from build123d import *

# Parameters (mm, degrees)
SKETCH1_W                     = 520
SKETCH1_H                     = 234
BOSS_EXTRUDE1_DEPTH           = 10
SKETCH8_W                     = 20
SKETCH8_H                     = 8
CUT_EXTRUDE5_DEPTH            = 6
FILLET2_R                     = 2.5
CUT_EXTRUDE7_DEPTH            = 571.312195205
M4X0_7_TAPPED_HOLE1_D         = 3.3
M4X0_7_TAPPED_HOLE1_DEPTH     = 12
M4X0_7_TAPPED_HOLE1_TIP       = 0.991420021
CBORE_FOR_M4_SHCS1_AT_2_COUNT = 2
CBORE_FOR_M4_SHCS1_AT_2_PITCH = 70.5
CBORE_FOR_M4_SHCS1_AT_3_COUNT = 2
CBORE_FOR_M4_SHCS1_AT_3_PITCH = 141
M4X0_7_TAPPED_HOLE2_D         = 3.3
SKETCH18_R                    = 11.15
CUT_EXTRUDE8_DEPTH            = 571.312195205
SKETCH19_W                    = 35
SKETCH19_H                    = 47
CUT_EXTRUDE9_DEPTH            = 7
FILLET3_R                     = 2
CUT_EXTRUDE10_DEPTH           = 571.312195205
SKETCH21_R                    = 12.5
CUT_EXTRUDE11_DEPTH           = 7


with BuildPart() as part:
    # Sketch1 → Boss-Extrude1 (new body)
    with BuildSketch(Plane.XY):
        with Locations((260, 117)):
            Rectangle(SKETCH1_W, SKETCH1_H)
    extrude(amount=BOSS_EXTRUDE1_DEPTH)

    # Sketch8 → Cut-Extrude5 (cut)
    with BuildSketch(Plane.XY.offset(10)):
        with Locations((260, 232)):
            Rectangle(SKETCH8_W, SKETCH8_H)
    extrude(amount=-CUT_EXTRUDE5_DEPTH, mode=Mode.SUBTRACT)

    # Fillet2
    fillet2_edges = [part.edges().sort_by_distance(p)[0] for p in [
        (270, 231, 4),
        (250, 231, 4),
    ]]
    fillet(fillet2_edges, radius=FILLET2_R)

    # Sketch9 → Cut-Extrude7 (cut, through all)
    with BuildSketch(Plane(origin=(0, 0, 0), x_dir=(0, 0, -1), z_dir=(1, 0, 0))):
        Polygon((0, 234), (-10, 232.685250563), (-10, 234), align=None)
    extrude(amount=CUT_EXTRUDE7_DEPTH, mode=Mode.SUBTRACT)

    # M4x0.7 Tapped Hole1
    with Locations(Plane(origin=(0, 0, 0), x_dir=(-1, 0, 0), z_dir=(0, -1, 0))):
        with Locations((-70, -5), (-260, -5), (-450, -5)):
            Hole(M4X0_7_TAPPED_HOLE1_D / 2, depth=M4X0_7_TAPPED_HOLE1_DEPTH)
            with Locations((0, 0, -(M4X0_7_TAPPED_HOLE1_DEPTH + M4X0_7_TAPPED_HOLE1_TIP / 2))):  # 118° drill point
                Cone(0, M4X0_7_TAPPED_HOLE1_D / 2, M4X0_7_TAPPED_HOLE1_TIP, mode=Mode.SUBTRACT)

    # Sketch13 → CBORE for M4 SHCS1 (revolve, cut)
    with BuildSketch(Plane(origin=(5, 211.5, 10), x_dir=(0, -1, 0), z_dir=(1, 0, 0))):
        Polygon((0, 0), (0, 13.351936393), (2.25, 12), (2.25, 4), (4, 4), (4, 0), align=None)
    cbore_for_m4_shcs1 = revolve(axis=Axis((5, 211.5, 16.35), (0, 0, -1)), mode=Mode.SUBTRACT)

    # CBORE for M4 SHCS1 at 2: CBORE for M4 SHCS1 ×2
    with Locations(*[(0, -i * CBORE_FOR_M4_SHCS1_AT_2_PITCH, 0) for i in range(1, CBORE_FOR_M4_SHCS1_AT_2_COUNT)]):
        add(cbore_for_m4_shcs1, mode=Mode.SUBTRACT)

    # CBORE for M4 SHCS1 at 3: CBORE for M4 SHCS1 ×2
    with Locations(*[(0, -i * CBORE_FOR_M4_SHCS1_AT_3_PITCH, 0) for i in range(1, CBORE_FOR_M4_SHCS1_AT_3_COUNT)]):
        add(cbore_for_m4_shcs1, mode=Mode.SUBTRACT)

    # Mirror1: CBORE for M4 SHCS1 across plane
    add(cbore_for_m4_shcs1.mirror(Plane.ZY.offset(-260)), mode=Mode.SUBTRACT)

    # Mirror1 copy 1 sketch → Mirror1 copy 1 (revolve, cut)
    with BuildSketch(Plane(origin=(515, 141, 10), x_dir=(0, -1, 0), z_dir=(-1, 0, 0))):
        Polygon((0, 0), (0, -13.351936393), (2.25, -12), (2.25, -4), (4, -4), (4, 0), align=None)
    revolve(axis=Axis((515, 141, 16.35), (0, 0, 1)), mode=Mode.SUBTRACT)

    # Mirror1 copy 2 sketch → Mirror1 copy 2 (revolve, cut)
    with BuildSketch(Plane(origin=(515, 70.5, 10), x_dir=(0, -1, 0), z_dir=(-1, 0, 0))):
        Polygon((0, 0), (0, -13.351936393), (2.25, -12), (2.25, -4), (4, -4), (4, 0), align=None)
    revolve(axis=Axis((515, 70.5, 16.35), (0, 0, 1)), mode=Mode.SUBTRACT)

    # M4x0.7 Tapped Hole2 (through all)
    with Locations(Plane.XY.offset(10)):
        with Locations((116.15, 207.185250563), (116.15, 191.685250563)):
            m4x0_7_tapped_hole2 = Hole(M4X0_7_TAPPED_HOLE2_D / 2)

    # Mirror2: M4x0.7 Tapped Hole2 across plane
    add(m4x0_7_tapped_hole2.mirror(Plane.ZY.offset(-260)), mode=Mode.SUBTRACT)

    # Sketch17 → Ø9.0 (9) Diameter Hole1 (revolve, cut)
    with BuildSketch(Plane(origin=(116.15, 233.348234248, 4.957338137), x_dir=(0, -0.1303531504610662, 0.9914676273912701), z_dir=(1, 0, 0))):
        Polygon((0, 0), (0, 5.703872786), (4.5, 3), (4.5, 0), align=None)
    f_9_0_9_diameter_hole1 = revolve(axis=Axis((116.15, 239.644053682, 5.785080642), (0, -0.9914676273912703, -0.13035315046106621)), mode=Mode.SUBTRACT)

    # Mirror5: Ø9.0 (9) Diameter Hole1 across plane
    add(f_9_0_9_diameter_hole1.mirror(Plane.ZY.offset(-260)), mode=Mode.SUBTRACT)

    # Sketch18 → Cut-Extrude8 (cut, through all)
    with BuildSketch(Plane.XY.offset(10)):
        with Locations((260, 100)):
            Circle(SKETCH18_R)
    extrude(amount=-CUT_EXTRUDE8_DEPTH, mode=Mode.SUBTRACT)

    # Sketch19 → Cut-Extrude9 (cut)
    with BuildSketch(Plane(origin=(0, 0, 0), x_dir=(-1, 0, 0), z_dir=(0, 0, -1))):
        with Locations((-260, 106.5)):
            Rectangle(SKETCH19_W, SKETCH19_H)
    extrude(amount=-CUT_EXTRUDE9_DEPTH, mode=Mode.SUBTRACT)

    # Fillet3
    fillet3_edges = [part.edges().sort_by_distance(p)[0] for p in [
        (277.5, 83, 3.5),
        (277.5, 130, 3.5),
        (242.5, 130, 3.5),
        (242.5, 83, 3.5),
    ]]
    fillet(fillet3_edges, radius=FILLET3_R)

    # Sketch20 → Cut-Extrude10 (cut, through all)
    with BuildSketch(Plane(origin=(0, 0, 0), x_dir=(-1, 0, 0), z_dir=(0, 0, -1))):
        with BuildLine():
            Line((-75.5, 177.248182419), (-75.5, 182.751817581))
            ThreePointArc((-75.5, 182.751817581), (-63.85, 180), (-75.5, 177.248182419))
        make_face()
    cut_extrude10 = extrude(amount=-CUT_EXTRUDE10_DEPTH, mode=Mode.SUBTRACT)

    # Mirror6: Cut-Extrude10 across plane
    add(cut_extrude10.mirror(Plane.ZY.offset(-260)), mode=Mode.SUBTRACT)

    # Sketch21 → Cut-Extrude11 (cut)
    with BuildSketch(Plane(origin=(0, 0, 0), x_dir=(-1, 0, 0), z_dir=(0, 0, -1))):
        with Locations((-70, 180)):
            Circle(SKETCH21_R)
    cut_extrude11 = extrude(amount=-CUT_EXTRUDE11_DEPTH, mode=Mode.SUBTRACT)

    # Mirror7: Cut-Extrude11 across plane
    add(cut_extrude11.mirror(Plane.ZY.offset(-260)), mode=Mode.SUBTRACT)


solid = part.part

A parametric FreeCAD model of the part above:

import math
import FreeCAD as App
import Part
import Sketcher

V = App.Vector
Q = App.Units.Quantity


def edges_at(feature, points):
    """Names of the edges that pass closest to the given points."""
    edges = feature.Shape.Edges
    near = lambda p: min(range(len(edges)), key=lambda i: edges[i].distToShape(Part.Vertex(*p))[0])
    return sorted({f"Edge{near(p) + 1}" for p in points})


def add_polygon(sketch, points):
    """Adds a closed chain of lines whose ends are joined by coincident constraints."""
    first, n = sketch.GeometryCount, len(points)
    for a, b in zip(points, points[1:] + points[:1]):
        sketch.addGeometry(Part.LineSegment(App.Vector(*a, 0), App.Vector(*b, 0)), False)
    for i in range(n):
        sketch.addConstraint(Sketcher.Constraint("Coincident", first + i, 2, first + (i + 1) % n, 1))

doc = App.newDocument("Part")
body = doc.addObject("PartDesign::Body", "Body")

# Sketch on XY plane
sketch1 = body.newObject("Sketcher::SketchObject", "Sketch")
sketch1.AttachmentSupport = (doc.getObject("XY_Plane"), [""])
sketch1.MapMode = "FlatFace"
add_polygon(sketch1, [(0, 234), (0, 0), (520, 0), (520, 234)])  # lines 0-3
sketch1.addConstraint([
    Sketcher.Constraint("Vertical", 0),
    Sketcher.Constraint("Horizontal", 1),
    Sketcher.Constraint("Vertical", 2),
    Sketcher.Constraint("Horizontal", 3),
    Sketcher.Constraint("Coincident", 0, 2, -1, 1),
    Sketcher.Constraint("DistanceX", 1, 1, 1, 2, Q("520 mm")),
    Sketcher.Constraint("DistanceY", 0, 2, 0, 1, Q("234 mm")),
])
pad1 = body.newObject("PartDesign::Pad", "Pad")
pad1.Profile = sketch1
pad1.Length = 10

# Sketch on XY plane
sketch2 = body.newObject("Sketcher::SketchObject", "Sketch001")
sketch2.AttachmentSupport = (doc.getObject("XY_Plane"), [""])
sketch2.MapMode = "FlatFace"
sketch2.AttachmentOffset = App.Placement(V(0, 0, 10), App.Rotation())
add_polygon(sketch2, [(250, 236), (250, 228), (270, 228), (270, 236)])  # lines 0-3
sketch2.addConstraint([
    Sketcher.Constraint("Vertical", 0),
    Sketcher.Constraint("Horizontal", 1),
    Sketcher.Constraint("Vertical", 2),
    Sketcher.Constraint("Horizontal", 3),
    Sketcher.Constraint("DistanceX", 1, 1, 1, 2, Q("20 mm")),
    Sketcher.Constraint("DistanceY", 0, 2, 0, 1, Q("8 mm")),
    Sketcher.Constraint("DistanceX", -1, 1, 0, 2, Q("250 mm")),
    Sketcher.Constraint("DistanceY", -1, 1, 0, 2, Q("228 mm")),
])
pocket1 = body.newObject("PartDesign::Pocket", "Pocket")
pocket1.Profile = sketch2
pocket1.Length = 6
doc.recompute()

fillet = body.newObject("PartDesign::Fillet", "Fillet")
fillet.Base = (pocket1, edges_at(pocket1, [(270, 231, 4), (250, 231, 4)]))
fillet.Radius = 2.5

# Sketch on YZ plane
sketch3 = body.newObject("Sketcher::SketchObject", "Sketch002")
sketch3.AttachmentSupport = (doc.getObject("YZ_Plane"), [""])
sketch3.MapMode = "FlatFace"
add_polygon(sketch3, [(232.7, 10), (234, 0), (234, 10)])  # lines 0-2
sketch3.addConstraint([
    Sketcher.Constraint("Vertical", 1),
    Sketcher.Constraint("Horizontal", 2),
    Sketcher.Constraint("PointOnObject", 0, 2, -1),
    Sketcher.Constraint("DistanceY", 1, 1, 1, 2, Q("10 mm")),
    Sketcher.Constraint("DistanceX", -1, 1, 0, 2, Q("234 mm")),
    Sketcher.Constraint("Angle", 0, Q("-82.51 deg")),
])
pocket2 = body.newObject("PartDesign::Pocket", "Pocket001")
pocket2.Profile = sketch3
pocket2.Type = "ThroughAll"
pocket2.Reversed = True

# Sketch on XZ plane
sketch4 = body.newObject("Sketcher::SketchObject", "Sketch003")
sketch4.AttachmentSupport = (doc.getObject("XZ_Plane"), [""])
sketch4.MapMode = "FlatFace"
sketch4.addGeometry([
    Part.Circle(V(70, 5, 0), V(0, 0, 1), 1.6),
    Part.Circle(V(260, 5, 0), V(0, 0, 1), 1.6),
    Part.Circle(V(450, 5, 0), V(0, 0, 1), 1.6),
], False)
sketch4.addConstraint([
    Sketcher.Constraint("Equal", 0, 1),
    Sketcher.Constraint("Equal", 1, 2),
    Sketcher.Constraint("Horizontal", 0, 3, 1, 3),
    Sketcher.Constraint("Horizontal", 1, 3, 2, 3),
    Sketcher.Constraint("Diameter", 0, Q("3.3 mm")),
    Sketcher.Constraint("DistanceX", -1, 1, 0, 3, Q("70 mm")),
    Sketcher.Constraint("DistanceY", -1, 1, 0, 3, Q("5 mm")),
    Sketcher.Constraint("DistanceX", -1, 1, 1, 3, Q("260 mm")),
    Sketcher.Constraint("DistanceX", -1, 1, 2, 3, Q("450 mm")),
])
doc.recompute()
hole = body.newObject("PartDesign::Hole", "Hole")
hole.Profile = sketch4
hole.ThreadType = "None"
hole.Diameter = 3.3
hole.DepthType = "Dimension"
hole.Depth = 12
hole.DrillPoint = "Angled"
hole.DrillPointAngle = 118

# Sketch on YZ plane
sketch5 = body.newObject("Sketcher::SketchObject", "Sketch004")
sketch5.AttachmentSupport = (doc.getObject("YZ_Plane"), [""])
sketch5.MapMode = "FlatFace"
sketch5.AttachmentOffset = App.Placement(V(0, 0, 5), App.Rotation())
add_polygon(sketch5, [(211.5, -3.4), (211.5, 10), (207.5, 10), (207.5, 6), (209.2, 6), (209.2, -2)])  # lines 0-5
sketch5.addGeometry(Part.LineSegment(V(211.5, 10, 0), V(211.5, -3.4, 0)), True)  # axis
sketch5.addConstraint([
    Sketcher.Constraint("Vertical", 0),
    Sketcher.Constraint("Horizontal", 1),
    Sketcher.Constraint("Vertical", 2),
    Sketcher.Constraint("Horizontal", 3),
    Sketcher.Constraint("Vertical", 4),
    Sketcher.Constraint("Vertical", 6),
    Sketcher.Constraint("Coincident", 6, 1, 0, 2),
    Sketcher.Constraint("Equal", 1, 2),
    Sketcher.Constraint("Equal", 0, 6),
    Sketcher.Constraint("DistanceX", 1, 2, 1, 1, Q("4 mm")),
    Sketcher.Constraint("DistanceY", 4, 2, 4, 1, Q("8 mm")),
    Sketcher.Constraint("Angle", 5, Q("-31 deg")),
    Sketcher.Constraint("DistanceY", -1, 1, 0, 2, Q("10 mm")),
    Sketcher.Constraint("DistanceX", 3, 1, 3, 2, Q("1.75 mm")),
    Sketcher.Constraint("DistanceX", -1, 1, 0, 2, Q("211.5 mm")),
])
groove = body.newObject("PartDesign::Groove", "Groove")
groove.Profile = sketch5
groove.ReferenceAxis = (sketch5, ["Axis0"])
groove.Angle = 360
doc.recompute()

linearpattern = body.newObject("PartDesign::LinearPattern", "LinearPattern")
linearpattern.Originals = [groove]
linearpattern.Direction = (doc.getObject("Y_Axis"), [""])
linearpattern.Mode = "offset"
linearpattern.Offset = 70.5
linearpattern.Occurrences = 2
linearpattern.Reversed = True
body.Tip = linearpattern
doc.recompute()

linearpattern2 = body.newObject("PartDesign::LinearPattern", "LinearPattern001")
linearpattern2.Originals = [groove]
linearpattern2.Direction = (doc.getObject("Y_Axis"), [""])
linearpattern2.Mode = "offset"
linearpattern2.Offset = 141
linearpattern2.Occurrences = 2
linearpattern2.Reversed = True
body.Tip = linearpattern2
doc.recompute()

datumplane = body.newObject("PartDesign::Plane", "DatumPlane")
datumplane.AttachmentSupport = (doc.getObject("YZ_Plane"), [""])
datumplane.MapMode = "FlatFace"
datumplane.AttachmentOffset = App.Placement(V(0, 0, 260), App.Rotation())
mirrored = body.newObject("PartDesign::Mirrored", "Mirrored")
mirrored.Originals = [groove]
mirrored.MirrorPlane = (datumplane, [""])
body.Tip = mirrored

# Sketch on YZ plane
sketch6 = body.newObject("Sketcher::SketchObject", "Sketch005")
sketch6.AttachmentSupport = (doc.getObject("YZ_Plane"), [""])
sketch6.MapMode = "FlatFace"
sketch6.AttachmentOffset = App.Placement(V(0, 0, 515), App.Rotation())
add_polygon(sketch6, [(141, 10), (141, -3.4), (138.8, -2), (138.8, 6), (137, 6), (137, 10)])  # lines 0-5
sketch6.addGeometry(Part.LineSegment(V(141, -3.4, 0), V(141, 10, 0)), True)  # axis
sketch6.addConstraint([
    Sketcher.Constraint("Vertical", 0),
    Sketcher.Constraint("Vertical", 2),
    Sketcher.Constraint("Horizontal", 3),
    Sketcher.Constraint("Vertical", 4),
    Sketcher.Constraint("Horizontal", 5),
    Sketcher.Constraint("Vertical", 6),
    Sketcher.Constraint("Coincident", 6, 1, 0, 2),
    Sketcher.Constraint("Horizontal", 4, 2, 6, 2),
    Sketcher.Constraint("Equal", 5, 4),
    Sketcher.Constraint("DistanceX", 5, 1, 5, 2, Q("4 mm")),
    Sketcher.Constraint("DistanceY", 2, 1, 2, 2, Q("8 mm")),
    Sketcher.Constraint("Angle", 1, Q("149 deg")),
    Sketcher.Constraint("DistanceX", -1, 1, 0, 2, Q("141 mm")),
    Sketcher.Constraint("DistanceY", 1, 2, -1, 1, Q("2 mm")),
    Sketcher.Constraint("DistanceX", 3, 2, 3, 1, Q("1.75 mm")),
])
groove2 = body.newObject("PartDesign::Groove", "Groove001")
groove2.Profile = sketch6
groove2.ReferenceAxis = (sketch6, ["Axis0"])
groove2.Angle = 360

# Sketch on YZ plane
sketch7 = body.newObject("Sketcher::SketchObject", "Sketch006")
sketch7.AttachmentSupport = (doc.getObject("YZ_Plane"), [""])
sketch7.MapMode = "FlatFace"
sketch7.AttachmentOffset = App.Placement(V(0, 0, 515), App.Rotation())
add_polygon(sketch7, [(70.5, 10), (70.5, -3.4), (68.2, -2), (68.2, 6), (66.5, 6), (66.5, 10)])  # lines 0-5
sketch7.addGeometry(Part.LineSegment(V(70.5, -3.4, 0), V(70.5, 10, 0)), True)  # axis
sketch7.addConstraint([
    Sketcher.Constraint("Vertical", 0),
    Sketcher.Constraint("Vertical", 2),
    Sketcher.Constraint("Horizontal", 3),
    Sketcher.Constraint("Vertical", 4),
    Sketcher.Constraint("Horizontal", 5),
    Sketcher.Constraint("Vertical", 6),
    Sketcher.Constraint("Coincident", 6, 1, 0, 2),
    Sketcher.Constraint("Horizontal", 4, 2, 6, 2),
    Sketcher.Constraint("Equal", 5, 4),
    Sketcher.Constraint("DistanceX", 5, 1, 5, 2, Q("4 mm")),
    Sketcher.Constraint("DistanceY", 2, 1, 2, 2, Q("8 mm")),
    Sketcher.Constraint("Angle", 1, Q("149 deg")),
    Sketcher.Constraint("DistanceY", 1, 2, -1, 1, Q("2 mm")),
    Sketcher.Constraint("DistanceX", 3, 2, 3, 1, Q("1.75 mm")),
    Sketcher.Constraint("DistanceX", -1, 1, 0, 2, Q("70.5 mm")),
])
groove3 = body.newObject("PartDesign::Groove", "Groove002")
groove3.Profile = sketch7
groove3.ReferenceAxis = (sketch7, ["Axis0"])
groove3.Angle = 360

# Sketch on XY plane
sketch8 = body.newObject("Sketcher::SketchObject", "Sketch007")
sketch8.AttachmentSupport = (doc.getObject("XY_Plane"), [""])
sketch8.MapMode = "FlatFace"
sketch8.AttachmentOffset = App.Placement(V(0, 0, 10), App.Rotation())
sketch8.addGeometry([
    Part.Circle(V(116.2, 207.2, 0), V(0, 0, 1), 1.6),
    Part.Circle(V(116.2, 191.7, 0), V(0, 0, 1), 1.6),
], False)
sketch8.addConstraint([
    Sketcher.Constraint("Equal", 0, 1),
    Sketcher.Constraint("Vertical", 0, 3, 1, 3),
    Sketcher.Constraint("Diameter", 0, Q("3.3 mm")),
    Sketcher.Constraint("DistanceY", 1, 3, 0, 3, Q("15.5 mm")),
    Sketcher.Constraint("DistanceX", -1, 1, 0, 3, Q("116.15 mm")),
    Sketcher.Constraint("DistanceY", -1, 1, 0, 3, Q("207.185251 mm")),
])
doc.recompute()
hole2 = body.newObject("PartDesign::Hole", "Hole001")
hole2.Profile = sketch8
hole2.ThreadType = "None"
hole2.Diameter = 3.3
hole2.DepthType = "ThroughAll"
doc.recompute()

datumplane2 = body.newObject("PartDesign::Plane", "DatumPlane001")
datumplane2.AttachmentSupport = (doc.getObject("YZ_Plane"), [""])
datumplane2.MapMode = "FlatFace"
datumplane2.AttachmentOffset = App.Placement(V(0, 0, 260), App.Rotation())
mirrored2 = body.newObject("PartDesign::Mirrored", "Mirrored001")
mirrored2.Originals = [hole2]
mirrored2.MirrorPlane = (datumplane2, [""])
body.Tip = mirrored2

# Sketch on YZ plane
sketch9 = body.newObject("Sketcher::SketchObject", "Sketch008")
sketch9.AttachmentSupport = (doc.getObject("YZ_Plane"), [""])
sketch9.MapMode = "FlatFace"
sketch9.AttachmentOffset = App.Placement(V(0, 0, 116.15), App.Rotation())
add_polygon(sketch9, [(227.7, 4.2), (233.3, 5), (232.8, 9.4), (229.8, 9)])  # lines 0-3
sketch9.addGeometry(Part.LineSegment(V(233.3, 5, 0), V(227.7, 4.2, 0)), True)  # axis
sketch9.addConstraint([
    Sketcher.Constraint("Coincident", 4, 1, 0, 2),
    Sketcher.Constraint("Coincident", 4, 2, 3, 2),
    Sketcher.Constraint("Perpendicular", 0, 1),
    Sketcher.Constraint("Perpendicular", 1, 2),
    Sketcher.Constraint("Distance", 2, Q("3 mm")),
    Sketcher.Constraint("Distance", 1, Q("4.5 mm")),
    Sketcher.Constraint("Angle", 0, Q("7.49 deg")),
    Sketcher.Constraint("Angle", 3, Q("-113.51 deg")),
    Sketcher.Constraint("DistanceY", -1, 1, 0, 2, Q("4.957338 mm")),
    Sketcher.Constraint("DistanceX", -1, 1, 3, 2, Q("227.693029 mm")),
])
groove4 = body.newObject("PartDesign::Groove", "Groove003")
groove4.Profile = sketch9
groove4.ReferenceAxis = (sketch9, ["Axis0"])
groove4.Angle = 360
doc.recompute()

datumplane3 = body.newObject("PartDesign::Plane", "DatumPlane002")
datumplane3.AttachmentSupport = (doc.getObject("YZ_Plane"), [""])
datumplane3.MapMode = "FlatFace"
datumplane3.AttachmentOffset = App.Placement(V(0, 0, 260), App.Rotation())
mirrored3 = body.newObject("PartDesign::Mirrored", "Mirrored002")
mirrored3.Originals = [groove4]
mirrored3.MirrorPlane = (datumplane3, [""])
body.Tip = mirrored3

# Sketch on XY plane
sketch10 = body.newObject("Sketcher::SketchObject", "Sketch009")
sketch10.AttachmentSupport = (doc.getObject("XY_Plane"), [""])
sketch10.MapMode = "FlatFace"
sketch10.AttachmentOffset = App.Placement(V(0, 0, 10), App.Rotation())
sketch10.addGeometry(Part.Circle(V(260, 100, 0), V(0, 0, 1), 11), False)
sketch10.addConstraint([
    Sketcher.Constraint("Diameter", 0, Q("22.3 mm")),
    Sketcher.Constraint("DistanceX", -1, 1, 0, 3, Q("260 mm")),
    Sketcher.Constraint("DistanceY", -1, 1, 0, 3, Q("100 mm")),
])
pocket3 = body.newObject("PartDesign::Pocket", "Pocket002")
pocket3.Profile = sketch10
pocket3.Type = "ThroughAll"

# Sketch on XY plane
sketch11 = body.newObject("Sketcher::SketchObject", "Sketch010")
sketch11.AttachmentSupport = (doc.getObject("XY_Plane"), [""])
sketch11.MapMode = "FlatFace"
add_polygon(sketch11, [(278, 130), (278, 83), (242, 83), (242, 130)])  # lines 0-3
sketch11.addConstraint([
    Sketcher.Constraint("Vertical", 0),
    Sketcher.Constraint("Horizontal", 1),
    Sketcher.Constraint("Vertical", 2),
    Sketcher.Constraint("Horizontal", 3),
    Sketcher.Constraint("DistanceX", 1, 2, 1, 1, Q("35 mm")),
    Sketcher.Constraint("DistanceY", 0, 2, 0, 1, Q("47 mm")),
    Sketcher.Constraint("DistanceY", -1, 1, 0, 2, Q("83 mm")),
    Sketcher.Constraint("DistanceX", -1, 1, 0, 2, Q("277.5 mm")),
])
pocket4 = body.newObject("PartDesign::Pocket", "Pocket003")
pocket4.Profile = sketch11
pocket4.Length = 7
pocket4.Reversed = True
doc.recompute()

fillet2 = body.newObject("PartDesign::Fillet", "Fillet001")
fillet2.Base = (pocket4, edges_at(pocket4, [
    (277.5, 83, 3.5),
    (277.5, 130, 3.5),
    (242.5, 130, 3.5),
    (242.5, 83, 3.5),
]))
fillet2.Radius = 2

# Sketch on XY plane
sketch12 = body.newObject("Sketcher::SketchObject", "Sketch011")
sketch12.AttachmentSupport = (doc.getObject("XY_Plane"), [""])
sketch12.MapMode = "FlatFace"
sketch12.addGeometry([
    Part.LineSegment(V(76, 183, 0), V(76, 177, 0)),
    Part.ArcOfCircle(Part.Circle(V(70, 180, 0), V(0, 0, 1), 6), math.radians(27), math.radians(333)),
], False)
sketch12.addConstraint([
    Sketcher.Constraint("Coincident", 0, 1, 1, 1),
    Sketcher.Constraint("Coincident", 1, 2, 0, 2),
    Sketcher.Constraint("Vertical", 0),
    Sketcher.Constraint("Radius", 1, Q("6.15 mm")),
    Sketcher.Constraint("DistanceX", -1, 1, 1, 3, Q("70 mm")),
    Sketcher.Constraint("DistanceY", -1, 1, 1, 3, Q("180 mm")),
    Sketcher.Constraint("DistanceX", -1, 1, 0, 1, Q("75.5 mm")),
])
pocket5 = body.newObject("PartDesign::Pocket", "Pocket004")
pocket5.Profile = sketch12
pocket5.Type = "ThroughAll"
pocket5.Reversed = True
doc.recompute()

datumplane4 = body.newObject("PartDesign::Plane", "DatumPlane003")
datumplane4.AttachmentSupport = (doc.getObject("YZ_Plane"), [""])
datumplane4.MapMode = "FlatFace"
datumplane4.AttachmentOffset = App.Placement(V(0, 0, 260), App.Rotation())
mirrored4 = body.newObject("PartDesign::Mirrored", "Mirrored003")
mirrored4.Originals = [pocket5]
mirrored4.MirrorPlane = (datumplane4, [""])
body.Tip = mirrored4

# Sketch on XY plane
sketch13 = body.newObject("Sketcher::SketchObject", "Sketch012")
sketch13.AttachmentSupport = (doc.getObject("XY_Plane"), [""])
sketch13.MapMode = "FlatFace"
sketch13.addGeometry(Part.Circle(V(70, 180, 0), V(0, 0, 1), 12), False)
sketch13.addConstraint([
    Sketcher.Constraint("Diameter", 0, Q("25 mm")),
    Sketcher.Constraint("DistanceX", -1, 1, 0, 3, Q("70 mm")),
    Sketcher.Constraint("DistanceY", -1, 1, 0, 3, Q("180 mm")),
])
pocket6 = body.newObject("PartDesign::Pocket", "Pocket005")
pocket6.Profile = sketch13
pocket6.Length = 7
pocket6.Reversed = True
doc.recompute()

datumplane5 = body.newObject("PartDesign::Plane", "DatumPlane004")
datumplane5.AttachmentSupport = (doc.getObject("YZ_Plane"), [""])
datumplane5.MapMode = "FlatFace"
datumplane5.AttachmentOffset = App.Placement(V(0, 0, 260), App.Rotation())
mirrored5 = body.newObject("PartDesign::Mirrored", "Mirrored004")
mirrored5.Originals = [pocket6]
mirrored5.MirrorPlane = (datumplane5, [""])
body.Tip = mirrored5

doc.recompute()
